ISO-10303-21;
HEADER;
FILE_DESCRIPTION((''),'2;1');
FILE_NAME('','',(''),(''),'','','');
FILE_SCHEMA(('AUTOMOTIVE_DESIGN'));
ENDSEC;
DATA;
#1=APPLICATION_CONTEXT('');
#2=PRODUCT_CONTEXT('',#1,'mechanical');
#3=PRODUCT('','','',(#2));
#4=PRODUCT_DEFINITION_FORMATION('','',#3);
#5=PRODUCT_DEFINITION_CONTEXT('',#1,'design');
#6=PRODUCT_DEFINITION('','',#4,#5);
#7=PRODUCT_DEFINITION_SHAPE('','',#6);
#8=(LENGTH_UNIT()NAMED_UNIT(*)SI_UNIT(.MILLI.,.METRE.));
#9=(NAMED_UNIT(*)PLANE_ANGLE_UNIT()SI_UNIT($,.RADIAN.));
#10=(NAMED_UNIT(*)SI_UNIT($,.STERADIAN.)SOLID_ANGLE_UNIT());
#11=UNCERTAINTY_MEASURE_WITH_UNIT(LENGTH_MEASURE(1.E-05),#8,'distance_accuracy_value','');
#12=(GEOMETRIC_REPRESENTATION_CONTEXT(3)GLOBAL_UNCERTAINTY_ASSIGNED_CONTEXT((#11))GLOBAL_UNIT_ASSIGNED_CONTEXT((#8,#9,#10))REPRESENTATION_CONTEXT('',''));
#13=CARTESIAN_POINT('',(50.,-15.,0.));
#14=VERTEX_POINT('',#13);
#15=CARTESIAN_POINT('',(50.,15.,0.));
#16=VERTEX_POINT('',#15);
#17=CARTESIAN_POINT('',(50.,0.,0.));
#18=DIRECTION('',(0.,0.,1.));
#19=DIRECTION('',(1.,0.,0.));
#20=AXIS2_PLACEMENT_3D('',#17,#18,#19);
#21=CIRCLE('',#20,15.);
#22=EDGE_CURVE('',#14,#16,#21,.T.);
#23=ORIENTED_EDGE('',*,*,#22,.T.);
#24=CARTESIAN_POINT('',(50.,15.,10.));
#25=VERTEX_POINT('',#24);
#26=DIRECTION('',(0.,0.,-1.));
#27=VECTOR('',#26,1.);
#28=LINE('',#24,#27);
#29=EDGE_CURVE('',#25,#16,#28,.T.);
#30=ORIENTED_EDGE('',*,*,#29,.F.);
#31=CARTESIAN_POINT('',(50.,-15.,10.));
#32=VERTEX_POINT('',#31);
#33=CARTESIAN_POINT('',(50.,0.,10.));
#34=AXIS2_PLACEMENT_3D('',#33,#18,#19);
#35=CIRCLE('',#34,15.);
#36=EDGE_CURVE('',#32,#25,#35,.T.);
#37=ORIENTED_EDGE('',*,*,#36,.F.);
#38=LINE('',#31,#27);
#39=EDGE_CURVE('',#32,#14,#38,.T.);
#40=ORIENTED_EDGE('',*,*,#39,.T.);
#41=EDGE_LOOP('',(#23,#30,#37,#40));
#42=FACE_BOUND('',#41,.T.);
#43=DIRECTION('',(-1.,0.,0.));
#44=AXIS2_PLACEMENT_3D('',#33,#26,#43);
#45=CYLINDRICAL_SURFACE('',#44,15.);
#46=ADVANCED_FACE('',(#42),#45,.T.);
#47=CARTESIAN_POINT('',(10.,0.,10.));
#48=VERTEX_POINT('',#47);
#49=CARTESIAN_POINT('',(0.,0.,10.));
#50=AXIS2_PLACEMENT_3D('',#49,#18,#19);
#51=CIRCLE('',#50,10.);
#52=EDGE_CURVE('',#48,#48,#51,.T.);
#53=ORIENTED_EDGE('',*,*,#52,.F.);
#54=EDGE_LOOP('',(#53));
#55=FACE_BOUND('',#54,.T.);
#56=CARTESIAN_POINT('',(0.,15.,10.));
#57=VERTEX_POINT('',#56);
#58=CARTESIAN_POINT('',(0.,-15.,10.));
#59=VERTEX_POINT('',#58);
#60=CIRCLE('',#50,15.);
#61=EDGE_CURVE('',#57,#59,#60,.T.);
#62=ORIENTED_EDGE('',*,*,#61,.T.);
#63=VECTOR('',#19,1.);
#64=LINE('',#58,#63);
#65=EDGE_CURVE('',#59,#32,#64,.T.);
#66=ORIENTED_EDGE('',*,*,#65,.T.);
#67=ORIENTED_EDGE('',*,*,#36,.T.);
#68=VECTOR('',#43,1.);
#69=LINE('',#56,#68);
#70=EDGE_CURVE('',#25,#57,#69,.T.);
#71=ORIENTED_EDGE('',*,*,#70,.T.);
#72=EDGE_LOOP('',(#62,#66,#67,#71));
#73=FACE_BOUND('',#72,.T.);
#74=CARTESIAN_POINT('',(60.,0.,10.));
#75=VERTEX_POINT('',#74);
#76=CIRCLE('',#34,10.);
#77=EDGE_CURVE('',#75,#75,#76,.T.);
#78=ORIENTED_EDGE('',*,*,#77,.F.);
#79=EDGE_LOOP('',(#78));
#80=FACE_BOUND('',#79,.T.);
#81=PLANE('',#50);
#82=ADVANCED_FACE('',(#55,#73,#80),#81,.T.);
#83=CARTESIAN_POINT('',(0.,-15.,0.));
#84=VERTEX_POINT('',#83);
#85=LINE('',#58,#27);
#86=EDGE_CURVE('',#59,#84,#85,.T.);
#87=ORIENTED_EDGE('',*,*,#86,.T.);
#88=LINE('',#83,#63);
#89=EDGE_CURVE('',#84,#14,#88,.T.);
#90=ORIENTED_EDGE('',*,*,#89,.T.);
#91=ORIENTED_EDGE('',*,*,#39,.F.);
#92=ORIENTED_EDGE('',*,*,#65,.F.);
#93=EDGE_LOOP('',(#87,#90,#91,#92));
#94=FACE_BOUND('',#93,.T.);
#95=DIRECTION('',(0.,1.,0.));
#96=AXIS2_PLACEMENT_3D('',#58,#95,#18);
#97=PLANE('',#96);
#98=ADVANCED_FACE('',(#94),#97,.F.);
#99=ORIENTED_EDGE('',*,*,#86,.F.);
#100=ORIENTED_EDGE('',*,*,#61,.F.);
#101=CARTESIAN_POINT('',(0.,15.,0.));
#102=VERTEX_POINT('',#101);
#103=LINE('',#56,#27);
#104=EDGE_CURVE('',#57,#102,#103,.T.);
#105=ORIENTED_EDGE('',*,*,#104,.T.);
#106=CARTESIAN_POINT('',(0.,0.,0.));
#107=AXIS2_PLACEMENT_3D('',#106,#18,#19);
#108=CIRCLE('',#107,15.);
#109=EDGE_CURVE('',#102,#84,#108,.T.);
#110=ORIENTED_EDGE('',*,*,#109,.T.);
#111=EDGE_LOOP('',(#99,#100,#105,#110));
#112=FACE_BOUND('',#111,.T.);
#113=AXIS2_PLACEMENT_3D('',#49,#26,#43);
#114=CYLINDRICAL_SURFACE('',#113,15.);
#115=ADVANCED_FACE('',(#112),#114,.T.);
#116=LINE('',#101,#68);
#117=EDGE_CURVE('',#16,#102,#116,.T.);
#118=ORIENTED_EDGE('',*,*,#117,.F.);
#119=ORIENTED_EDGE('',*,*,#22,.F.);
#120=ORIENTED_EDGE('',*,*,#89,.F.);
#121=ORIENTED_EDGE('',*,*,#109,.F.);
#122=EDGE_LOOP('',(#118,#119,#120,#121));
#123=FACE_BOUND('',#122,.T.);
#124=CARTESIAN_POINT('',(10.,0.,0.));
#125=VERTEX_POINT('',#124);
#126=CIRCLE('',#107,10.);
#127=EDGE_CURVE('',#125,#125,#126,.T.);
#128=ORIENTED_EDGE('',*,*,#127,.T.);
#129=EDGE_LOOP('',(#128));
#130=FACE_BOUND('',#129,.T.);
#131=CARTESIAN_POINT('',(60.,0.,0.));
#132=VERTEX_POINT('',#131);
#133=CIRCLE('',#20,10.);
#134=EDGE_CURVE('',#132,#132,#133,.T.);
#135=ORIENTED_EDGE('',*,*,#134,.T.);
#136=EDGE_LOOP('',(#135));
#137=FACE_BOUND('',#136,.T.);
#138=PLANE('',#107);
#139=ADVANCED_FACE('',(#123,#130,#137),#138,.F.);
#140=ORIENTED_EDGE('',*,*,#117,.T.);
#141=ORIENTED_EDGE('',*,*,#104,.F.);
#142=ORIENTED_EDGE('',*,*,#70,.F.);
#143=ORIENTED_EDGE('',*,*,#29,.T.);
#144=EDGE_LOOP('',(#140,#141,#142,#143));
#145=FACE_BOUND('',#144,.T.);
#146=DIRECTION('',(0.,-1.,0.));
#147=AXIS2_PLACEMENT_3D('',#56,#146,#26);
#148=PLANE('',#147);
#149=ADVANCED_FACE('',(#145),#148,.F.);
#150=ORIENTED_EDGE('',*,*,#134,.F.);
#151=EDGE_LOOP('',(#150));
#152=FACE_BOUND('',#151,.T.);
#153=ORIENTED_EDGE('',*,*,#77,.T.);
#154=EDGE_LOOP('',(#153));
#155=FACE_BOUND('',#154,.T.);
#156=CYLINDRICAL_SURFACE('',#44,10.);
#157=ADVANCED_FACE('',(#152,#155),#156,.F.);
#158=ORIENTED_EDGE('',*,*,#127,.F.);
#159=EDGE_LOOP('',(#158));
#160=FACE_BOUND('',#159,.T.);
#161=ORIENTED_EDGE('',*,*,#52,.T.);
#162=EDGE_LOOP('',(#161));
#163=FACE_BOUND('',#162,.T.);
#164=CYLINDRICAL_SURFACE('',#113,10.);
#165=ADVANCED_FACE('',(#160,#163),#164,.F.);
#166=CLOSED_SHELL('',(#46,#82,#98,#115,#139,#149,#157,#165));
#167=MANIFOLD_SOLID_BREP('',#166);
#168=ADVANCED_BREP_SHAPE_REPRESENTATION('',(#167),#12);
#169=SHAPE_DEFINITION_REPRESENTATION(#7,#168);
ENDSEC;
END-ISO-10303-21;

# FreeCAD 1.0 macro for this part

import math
import FreeCAD as App
import Part
import Sketcher
from FreeCAD import Vector
Q = App.Units.Quantity

doc = App.newDocument("Part")
body = doc.addObject("PartDesign::Body", "Body")

sketch1 = body.newObject("Sketcher::SketchObject", "Sketch")
sketch1.AttachmentSupport = (doc.getObject("XY_Plane"), [""])
sketch1.MapMode = "FlatFace"
sketch1.addGeometry(Part.LineSegment(Vector(50, 15, 0), Vector(0, 15, 0)), False)
sketch1.addGeometry(Part.ArcOfCircle(Part.Circle(Vector(0, 0, 0), Vector(0, 0, 1), 15), math.radians(90), math.radians(270)), False)
sketch1.addGeometry(Part.LineSegment(Vector(0, -15, 0), Vector(50, -15, 0)), False)
sketch1.addGeometry(Part.ArcOfCircle(Part.Circle(Vector(50, 0, 0), Vector(0, 0, 1), 15), math.radians(-90), math.radians(90)), False)
sketch1.addGeometry(Part.Circle(Vector(50, 0, 0), Vector(0, 0, 1), 10), False)
sketch1.addGeometry(Part.Circle(Vector(0, 0, 0), Vector(0, 0, 1), 10), False)
sketch1.addConstraint(Sketcher.Constraint("Tangent", 0, 2, 1, 1))
sketch1.addConstraint(Sketcher.Constraint("Tangent", 1, 2, 2, 1))
sketch1.addConstraint(Sketcher.Constraint("Tangent", 2, 2, 3, 1))
sketch1.addConstraint(Sketcher.Constraint("Tangent", 3, 2, 0, 1))
sketch1.addConstraint(Sketcher.Constraint("Horizontal", 0))
sketch1.addConstraint(Sketcher.Constraint("Horizontal", 2))
sketch1.addConstraint(Sketcher.Constraint("Coincident", 1, 3, -1, 1))
sketch1.addConstraint(Sketcher.Constraint("Coincident", 5, 3, -1, 1))
sketch1.addConstraint(Sketcher.Constraint("Coincident", 4, 3, 3, 3))
sketch1.addConstraint(Sketcher.Constraint("Equal", 4, 5))
sketch1.addConstraint(Sketcher.Constraint("Diameter", 4, Q("20 mm")))
sketch1.addConstraint(Sketcher.Constraint("Radius", 1, Q("15 mm")))
sketch1.addConstraint(Sketcher.Constraint("DistanceX", 0, 2, 0, 1, Q("50 mm")))
pad1 = body.newObject("PartDesign::Pad", "Pad")
pad1.Profile = sketch1
pad1.Length = 10

doc.recompute()
